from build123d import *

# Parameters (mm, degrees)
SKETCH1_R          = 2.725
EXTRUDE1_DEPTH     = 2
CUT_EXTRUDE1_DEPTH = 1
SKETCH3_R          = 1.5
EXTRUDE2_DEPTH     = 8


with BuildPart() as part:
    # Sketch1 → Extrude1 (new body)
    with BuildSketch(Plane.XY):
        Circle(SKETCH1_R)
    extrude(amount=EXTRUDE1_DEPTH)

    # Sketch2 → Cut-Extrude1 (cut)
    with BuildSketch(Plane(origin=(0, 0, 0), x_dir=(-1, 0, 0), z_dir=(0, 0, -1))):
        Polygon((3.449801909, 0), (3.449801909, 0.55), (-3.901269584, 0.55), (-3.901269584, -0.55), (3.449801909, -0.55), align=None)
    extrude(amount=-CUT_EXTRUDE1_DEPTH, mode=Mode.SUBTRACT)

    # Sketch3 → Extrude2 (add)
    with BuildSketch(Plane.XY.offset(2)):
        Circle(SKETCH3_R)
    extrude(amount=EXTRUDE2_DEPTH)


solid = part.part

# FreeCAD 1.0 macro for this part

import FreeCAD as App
import Part
import Sketcher
from FreeCAD import Vector
Q = App.Units.Quantity

doc = App.newDocument("Part")
body = doc.addObject("PartDesign::Body", "Body")

sketch1 = body.newObject("Sketcher::SketchObject", "Sketch")
sketch1.AttachmentSupport = (doc.getObject("XY_Plane"), [""])
sketch1.MapMode = "FlatFace"
sketch1.addGeometry(Part.Circle(Vector(0, 0, 0), Vector(0, 0, 1), 2.7), False)
sketch1.addConstraint(Sketcher.Constraint("Coincident", 0, 3, -1, 1))
sketch1.addConstraint(Sketcher.Constraint("Diameter", 0, Q("5.45 mm")))
pad1 = body.newObject("PartDesign::Pad", "Pad")
pad1.Profile = sketch1
pad1.Length = 2

sketch2 = body.newObject("Sketcher::SketchObject", "Sketch001")
sketch2.AttachmentSupport = (doc.getObject("XY_Plane"), [""])
sketch2.MapMode = "FlatFace"
sketch2.addGeometry(Part.LineSegment(Vector(-3.4, 0.6, 0), Vector(3.9, 0.6, 0)), False)
sketch2.addGeometry(Part.LineSegment(Vector(3.9, 0.6, 0), Vector(3.9, -0.6, 0)), False)
sketch2.addGeometry(Part.LineSegment(Vector(3.9, -0.6, 0), Vector(-3.4, -0.6, 0)), False)
sketch2.addGeometry(Part.LineSegment(Vector(-3.4, -0.6, 0), Vector(-3.4, 0.6, 0)), False)
sketch2.addConstraint(Sketcher.Constraint("Coincident", 0, 2, 1, 1))
sketch2.addConstraint(Sketcher.Constraint("Coincident", 1, 2, 2, 1))
sketch2.addConstraint(Sketcher.Constraint("Coincident", 2, 2, 3, 1))
sketch2.addConstraint(Sketcher.Constraint("Coincident", 3, 2, 0, 1))
sketch2.addConstraint(Sketcher.Constraint("Horizontal", 0))
sketch2.addConstraint(Sketcher.Constraint("Vertical", 1))
sketch2.addConstraint(Sketcher.Constraint("Horizontal", 2))
sketch2.addConstraint(Sketcher.Constraint("Vertical", 3))
sketch2.addConstraint(Sketcher.Constraint("DistanceY", 1, 2, 1, 1, Q("1.1 mm")))
sketch2.addConstraint(Sketcher.Constraint("DistanceY", -1, 1, 0, 2, Q("0.55 mm")))
sketch2.addConstraint(Sketcher.Constraint("DistanceX", 0, 1, 0, 2, Q("7.351071 mm")))
sketch2.addConstraint(Sketcher.Constraint("DistanceX", 2, 2, -1, 1, Q("3.449802 mm")))
pocket1 = body.newObject("PartDesign::Pocket", "Pocket")
pocket1.Profile = sketch2
pocket1.Length = 1
pocket1.Reversed = True

sketch3 = body.newObject("Sketcher::SketchObject", "Sketch002")
sketch3.AttachmentSupport = (doc.getObject("XY_Plane"), [""])
sketch3.MapMode = "FlatFace"
sketch3.AttachmentOffset = App.Placement(Vector(0, 0, 2), App.Rotation())
sketch3.addGeometry(Part.Circle(Vector(0, 0, 0), Vector(0, 0, 1), 1.5), False)
sketch3.addConstraint(Sketcher.Constraint("Coincident", 0, 3, -1, 1))
sketch3.addConstraint(Sketcher.Constraint("Diameter", 0, Q("3 mm")))
pad2 = body.newObject("PartDesign::Pad", "Pad001")
pad2.Profile = sketch3
pad2.Length = 8

doc.recompute()
